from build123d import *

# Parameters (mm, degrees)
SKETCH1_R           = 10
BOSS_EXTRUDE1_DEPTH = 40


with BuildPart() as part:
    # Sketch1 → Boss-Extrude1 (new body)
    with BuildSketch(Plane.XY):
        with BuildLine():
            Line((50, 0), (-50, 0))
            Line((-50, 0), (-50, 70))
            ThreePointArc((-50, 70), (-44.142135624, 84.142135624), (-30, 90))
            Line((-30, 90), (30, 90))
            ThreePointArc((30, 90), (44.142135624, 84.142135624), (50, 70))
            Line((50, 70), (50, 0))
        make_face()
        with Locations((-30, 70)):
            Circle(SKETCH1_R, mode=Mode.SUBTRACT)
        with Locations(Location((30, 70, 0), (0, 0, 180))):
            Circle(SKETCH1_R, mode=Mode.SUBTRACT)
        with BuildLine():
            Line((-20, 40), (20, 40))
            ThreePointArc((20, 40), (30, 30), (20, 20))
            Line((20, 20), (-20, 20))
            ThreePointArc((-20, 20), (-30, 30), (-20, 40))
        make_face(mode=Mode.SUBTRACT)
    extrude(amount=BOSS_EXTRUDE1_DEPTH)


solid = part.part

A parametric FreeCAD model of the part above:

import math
import FreeCAD as App
import Part
import Sketcher

doc = App.newDocument("Part")
params = doc.addObject("Spreadsheet::Sheet", "Params")
for row, (alias, value) in enumerate([
    ("sketch1_diameter", "20 mm"),
    ("sketch1_radius", "20 mm"),
    ("sketch1_width", "100 mm"),
    ("sketch1_width2", "40 mm"),
    ("sketch1_height", "70 mm"),
    ("pad1_length", "40 mm"),
], start=1):
    params.set(f"A{row}", alias)
    params.set(f"B{row}", "=" + value)
    params.setAlias(f"B{row}", alias)

body = doc.addObject("PartDesign::Body", "Body")

# Sketch on XY plane
sketch1 = body.newObject("Sketcher::SketchObject", "Sketch")
sketch1.AttachmentSupport = (doc.getObject("XY_Plane"), [""])
sketch1.MapMode = "FlatFace"
sketch1.addGeometry([
    Part.LineSegment(App.Vector(-50, 0, 0), App.Vector(50, 0, 0)),  # 0
    Part.LineSegment(App.Vector(50, 0, 0), App.Vector(50, 70, 0)),  # 1
    Part.ArcOfCircle(Part.Circle(App.Vector(30, 70, 0), App.Vector(0, 0, 1), 20), math.radians(0), math.radians(90)),  # 2
    Part.LineSegment(App.Vector(30, 90, 0), App.Vector(-30, 90, 0)),  # 3
    Part.ArcOfCircle(Part.Circle(App.Vector(-30, 70, 0), App.Vector(0, 0, 1), 20), math.radians(90), math.radians(180)),  # 4
    Part.LineSegment(App.Vector(-50, 70, 0), App.Vector(-50, 0, 0)),  # 5
    Part.LineSegment(App.Vector(-20, 40, 0), App.Vector(20, 40, 0)),  # 6
    Part.ArcOfCircle(Part.Circle(App.Vector(20, 30, 0), App.Vector(0, 0, 1), 10), math.radians(-90), math.radians(90)),  # 7
    Part.LineSegment(App.Vector(20, 20, 0), App.Vector(-20, 20, 0)),  # 8
    Part.ArcOfCircle(Part.Circle(App.Vector(-20, 30, 0), App.Vector(0, 0, 1), 10), math.radians(90), math.radians(270)),  # 9
    Part.Circle(App.Vector(30, 70, 0), App.Vector(0, 0, 1), 10),  # 10
    Part.Circle(App.Vector(-30, 70, 0), App.Vector(0, 0, 1), 10),  # 11
], False)
sketch1.addConstraint([
    Sketcher.Constraint("Coincident", 0, 2, 1, 1),
    Sketcher.Constraint("Tangent", 1, 2, 2, 1),
    Sketcher.Constraint("Tangent", 2, 2, 3, 1),
    Sketcher.Constraint("Tangent", 3, 2, 4, 1),
    Sketcher.Constraint("Tangent", 4, 2, 5, 1),
    Sketcher.Constraint("Coincident", 5, 2, 0, 1),
    Sketcher.Constraint("Tangent", 6, 2, 7, 2),
    Sketcher.Constraint("Tangent", 7, 1, 8, 1),
    Sketcher.Constraint("Tangent", 8, 2, 9, 2),
    Sketcher.Constraint("Tangent", 9, 1, 6, 1),
    Sketcher.Constraint("Horizontal", 0),
    Sketcher.Constraint("Vertical", 1),
    Sketcher.Constraint("Horizontal", 3),
    Sketcher.Constraint("Vertical", 5),
    Sketcher.Constraint("Horizontal", 6),
    Sketcher.Constraint("Horizontal", 8),
    Sketcher.Constraint("Coincident", 10, 3, 2, 3),
    Sketcher.Constraint("Coincident", 11, 3, 4, 3),
    Sketcher.Constraint("Equal", 2, 4),
    Sketcher.Constraint("Equal", 9, 10),
    Sketcher.Constraint("Equal", 10, 11),
    Sketcher.Constraint("Symmetric", 0, 2, 5, 2, -1, 1),
    Sketcher.Constraint("Diameter", 10, 20.0),
    Sketcher.Constraint("Radius", 2, 20.0),
    Sketcher.Constraint("DistanceX", 0, 1, 0, 2, 100.0),
    Sketcher.Constraint("DistanceX", 6, 1, 6, 2, 40.0),
    Sketcher.Constraint("DistanceY", 1, 1, 1, 2, 70.0),
    Sketcher.Constraint("DistanceX", -1, 1, 7, 3, 20.0),
    Sketcher.Constraint("DistanceY", -1, 1, 7, 3, 30.0),
])
sketch1.setExpression("Constraints[22]", "Params.sketch1_diameter")
sketch1.setExpression("Constraints[23]", "Params.sketch1_radius")
sketch1.setExpression("Constraints[24]", "Params.sketch1_width")
sketch1.setExpression("Constraints[25]", "Params.sketch1_width2")
sketch1.setExpression("Constraints[26]", "Params.sketch1_height")
pad1 = body.newObject("PartDesign::Pad", "Pad")
pad1.Profile = sketch1
pad1.setExpression("Length", "Params.pad1_length")

doc.recompute()
